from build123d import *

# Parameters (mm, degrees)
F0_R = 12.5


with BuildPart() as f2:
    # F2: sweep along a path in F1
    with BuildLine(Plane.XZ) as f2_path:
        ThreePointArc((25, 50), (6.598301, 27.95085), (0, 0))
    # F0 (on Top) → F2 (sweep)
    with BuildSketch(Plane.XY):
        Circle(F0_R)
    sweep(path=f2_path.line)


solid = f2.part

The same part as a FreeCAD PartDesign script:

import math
import FreeCAD as App
import Part
import Sketcher

doc = App.newDocument("Part")
body = doc.addObject("PartDesign::Body", "Body")

# Sketch on XY plane
sketch1 = body.newObject("Sketcher::SketchObject", "Sketch")
sketch1.AttachmentSupport = (doc.getObject("XY_Plane"), [""])
sketch1.MapMode = "FlatFace"
sketch1.addGeometry(Part.Circle(App.Vector(0, 0, 0), App.Vector(0, 0, 1), 12.5), False)
sketch1.addConstraint([
    Sketcher.Constraint("Coincident", 0, 3, -1, 1),
    Sketcher.Constraint("Diameter", 0, 25.0),
])

# Sketch on XZ plane
sketch2 = body.newObject("Sketcher::SketchObject", "Sketch001")
sketch2.AttachmentSupport = (doc.getObject("XZ_Plane"), [""])
sketch2.MapMode = "FlatFace"
sketch2.addGeometry(Part.ArcOfCircle(Part.Circle(App.Vector(62.500002, -0.000001, 0), App.Vector(0, 0, 1), 62.500002), math.radians(126.869899), math.radians(179.999999)), False)
sketch2.addConstraint([
    Sketcher.Constraint("Coincident", 0, 2, -1, 1),
    Sketcher.Constraint("PointOnObject", 0, 3, -1),
    Sketcher.Constraint("DistanceX", -1, 1, 0, 1, 25.0),
    Sketcher.Constraint("DistanceY", -1, 1, 0, 1, 50.0),
])
doc.recompute()

additivepipe = body.newObject("PartDesign::AdditivePipe", "AdditivePipe")
additivepipe.Profile = sketch1
additivepipe.Spine = (sketch2, ["Edge1"])

doc.recompute()
